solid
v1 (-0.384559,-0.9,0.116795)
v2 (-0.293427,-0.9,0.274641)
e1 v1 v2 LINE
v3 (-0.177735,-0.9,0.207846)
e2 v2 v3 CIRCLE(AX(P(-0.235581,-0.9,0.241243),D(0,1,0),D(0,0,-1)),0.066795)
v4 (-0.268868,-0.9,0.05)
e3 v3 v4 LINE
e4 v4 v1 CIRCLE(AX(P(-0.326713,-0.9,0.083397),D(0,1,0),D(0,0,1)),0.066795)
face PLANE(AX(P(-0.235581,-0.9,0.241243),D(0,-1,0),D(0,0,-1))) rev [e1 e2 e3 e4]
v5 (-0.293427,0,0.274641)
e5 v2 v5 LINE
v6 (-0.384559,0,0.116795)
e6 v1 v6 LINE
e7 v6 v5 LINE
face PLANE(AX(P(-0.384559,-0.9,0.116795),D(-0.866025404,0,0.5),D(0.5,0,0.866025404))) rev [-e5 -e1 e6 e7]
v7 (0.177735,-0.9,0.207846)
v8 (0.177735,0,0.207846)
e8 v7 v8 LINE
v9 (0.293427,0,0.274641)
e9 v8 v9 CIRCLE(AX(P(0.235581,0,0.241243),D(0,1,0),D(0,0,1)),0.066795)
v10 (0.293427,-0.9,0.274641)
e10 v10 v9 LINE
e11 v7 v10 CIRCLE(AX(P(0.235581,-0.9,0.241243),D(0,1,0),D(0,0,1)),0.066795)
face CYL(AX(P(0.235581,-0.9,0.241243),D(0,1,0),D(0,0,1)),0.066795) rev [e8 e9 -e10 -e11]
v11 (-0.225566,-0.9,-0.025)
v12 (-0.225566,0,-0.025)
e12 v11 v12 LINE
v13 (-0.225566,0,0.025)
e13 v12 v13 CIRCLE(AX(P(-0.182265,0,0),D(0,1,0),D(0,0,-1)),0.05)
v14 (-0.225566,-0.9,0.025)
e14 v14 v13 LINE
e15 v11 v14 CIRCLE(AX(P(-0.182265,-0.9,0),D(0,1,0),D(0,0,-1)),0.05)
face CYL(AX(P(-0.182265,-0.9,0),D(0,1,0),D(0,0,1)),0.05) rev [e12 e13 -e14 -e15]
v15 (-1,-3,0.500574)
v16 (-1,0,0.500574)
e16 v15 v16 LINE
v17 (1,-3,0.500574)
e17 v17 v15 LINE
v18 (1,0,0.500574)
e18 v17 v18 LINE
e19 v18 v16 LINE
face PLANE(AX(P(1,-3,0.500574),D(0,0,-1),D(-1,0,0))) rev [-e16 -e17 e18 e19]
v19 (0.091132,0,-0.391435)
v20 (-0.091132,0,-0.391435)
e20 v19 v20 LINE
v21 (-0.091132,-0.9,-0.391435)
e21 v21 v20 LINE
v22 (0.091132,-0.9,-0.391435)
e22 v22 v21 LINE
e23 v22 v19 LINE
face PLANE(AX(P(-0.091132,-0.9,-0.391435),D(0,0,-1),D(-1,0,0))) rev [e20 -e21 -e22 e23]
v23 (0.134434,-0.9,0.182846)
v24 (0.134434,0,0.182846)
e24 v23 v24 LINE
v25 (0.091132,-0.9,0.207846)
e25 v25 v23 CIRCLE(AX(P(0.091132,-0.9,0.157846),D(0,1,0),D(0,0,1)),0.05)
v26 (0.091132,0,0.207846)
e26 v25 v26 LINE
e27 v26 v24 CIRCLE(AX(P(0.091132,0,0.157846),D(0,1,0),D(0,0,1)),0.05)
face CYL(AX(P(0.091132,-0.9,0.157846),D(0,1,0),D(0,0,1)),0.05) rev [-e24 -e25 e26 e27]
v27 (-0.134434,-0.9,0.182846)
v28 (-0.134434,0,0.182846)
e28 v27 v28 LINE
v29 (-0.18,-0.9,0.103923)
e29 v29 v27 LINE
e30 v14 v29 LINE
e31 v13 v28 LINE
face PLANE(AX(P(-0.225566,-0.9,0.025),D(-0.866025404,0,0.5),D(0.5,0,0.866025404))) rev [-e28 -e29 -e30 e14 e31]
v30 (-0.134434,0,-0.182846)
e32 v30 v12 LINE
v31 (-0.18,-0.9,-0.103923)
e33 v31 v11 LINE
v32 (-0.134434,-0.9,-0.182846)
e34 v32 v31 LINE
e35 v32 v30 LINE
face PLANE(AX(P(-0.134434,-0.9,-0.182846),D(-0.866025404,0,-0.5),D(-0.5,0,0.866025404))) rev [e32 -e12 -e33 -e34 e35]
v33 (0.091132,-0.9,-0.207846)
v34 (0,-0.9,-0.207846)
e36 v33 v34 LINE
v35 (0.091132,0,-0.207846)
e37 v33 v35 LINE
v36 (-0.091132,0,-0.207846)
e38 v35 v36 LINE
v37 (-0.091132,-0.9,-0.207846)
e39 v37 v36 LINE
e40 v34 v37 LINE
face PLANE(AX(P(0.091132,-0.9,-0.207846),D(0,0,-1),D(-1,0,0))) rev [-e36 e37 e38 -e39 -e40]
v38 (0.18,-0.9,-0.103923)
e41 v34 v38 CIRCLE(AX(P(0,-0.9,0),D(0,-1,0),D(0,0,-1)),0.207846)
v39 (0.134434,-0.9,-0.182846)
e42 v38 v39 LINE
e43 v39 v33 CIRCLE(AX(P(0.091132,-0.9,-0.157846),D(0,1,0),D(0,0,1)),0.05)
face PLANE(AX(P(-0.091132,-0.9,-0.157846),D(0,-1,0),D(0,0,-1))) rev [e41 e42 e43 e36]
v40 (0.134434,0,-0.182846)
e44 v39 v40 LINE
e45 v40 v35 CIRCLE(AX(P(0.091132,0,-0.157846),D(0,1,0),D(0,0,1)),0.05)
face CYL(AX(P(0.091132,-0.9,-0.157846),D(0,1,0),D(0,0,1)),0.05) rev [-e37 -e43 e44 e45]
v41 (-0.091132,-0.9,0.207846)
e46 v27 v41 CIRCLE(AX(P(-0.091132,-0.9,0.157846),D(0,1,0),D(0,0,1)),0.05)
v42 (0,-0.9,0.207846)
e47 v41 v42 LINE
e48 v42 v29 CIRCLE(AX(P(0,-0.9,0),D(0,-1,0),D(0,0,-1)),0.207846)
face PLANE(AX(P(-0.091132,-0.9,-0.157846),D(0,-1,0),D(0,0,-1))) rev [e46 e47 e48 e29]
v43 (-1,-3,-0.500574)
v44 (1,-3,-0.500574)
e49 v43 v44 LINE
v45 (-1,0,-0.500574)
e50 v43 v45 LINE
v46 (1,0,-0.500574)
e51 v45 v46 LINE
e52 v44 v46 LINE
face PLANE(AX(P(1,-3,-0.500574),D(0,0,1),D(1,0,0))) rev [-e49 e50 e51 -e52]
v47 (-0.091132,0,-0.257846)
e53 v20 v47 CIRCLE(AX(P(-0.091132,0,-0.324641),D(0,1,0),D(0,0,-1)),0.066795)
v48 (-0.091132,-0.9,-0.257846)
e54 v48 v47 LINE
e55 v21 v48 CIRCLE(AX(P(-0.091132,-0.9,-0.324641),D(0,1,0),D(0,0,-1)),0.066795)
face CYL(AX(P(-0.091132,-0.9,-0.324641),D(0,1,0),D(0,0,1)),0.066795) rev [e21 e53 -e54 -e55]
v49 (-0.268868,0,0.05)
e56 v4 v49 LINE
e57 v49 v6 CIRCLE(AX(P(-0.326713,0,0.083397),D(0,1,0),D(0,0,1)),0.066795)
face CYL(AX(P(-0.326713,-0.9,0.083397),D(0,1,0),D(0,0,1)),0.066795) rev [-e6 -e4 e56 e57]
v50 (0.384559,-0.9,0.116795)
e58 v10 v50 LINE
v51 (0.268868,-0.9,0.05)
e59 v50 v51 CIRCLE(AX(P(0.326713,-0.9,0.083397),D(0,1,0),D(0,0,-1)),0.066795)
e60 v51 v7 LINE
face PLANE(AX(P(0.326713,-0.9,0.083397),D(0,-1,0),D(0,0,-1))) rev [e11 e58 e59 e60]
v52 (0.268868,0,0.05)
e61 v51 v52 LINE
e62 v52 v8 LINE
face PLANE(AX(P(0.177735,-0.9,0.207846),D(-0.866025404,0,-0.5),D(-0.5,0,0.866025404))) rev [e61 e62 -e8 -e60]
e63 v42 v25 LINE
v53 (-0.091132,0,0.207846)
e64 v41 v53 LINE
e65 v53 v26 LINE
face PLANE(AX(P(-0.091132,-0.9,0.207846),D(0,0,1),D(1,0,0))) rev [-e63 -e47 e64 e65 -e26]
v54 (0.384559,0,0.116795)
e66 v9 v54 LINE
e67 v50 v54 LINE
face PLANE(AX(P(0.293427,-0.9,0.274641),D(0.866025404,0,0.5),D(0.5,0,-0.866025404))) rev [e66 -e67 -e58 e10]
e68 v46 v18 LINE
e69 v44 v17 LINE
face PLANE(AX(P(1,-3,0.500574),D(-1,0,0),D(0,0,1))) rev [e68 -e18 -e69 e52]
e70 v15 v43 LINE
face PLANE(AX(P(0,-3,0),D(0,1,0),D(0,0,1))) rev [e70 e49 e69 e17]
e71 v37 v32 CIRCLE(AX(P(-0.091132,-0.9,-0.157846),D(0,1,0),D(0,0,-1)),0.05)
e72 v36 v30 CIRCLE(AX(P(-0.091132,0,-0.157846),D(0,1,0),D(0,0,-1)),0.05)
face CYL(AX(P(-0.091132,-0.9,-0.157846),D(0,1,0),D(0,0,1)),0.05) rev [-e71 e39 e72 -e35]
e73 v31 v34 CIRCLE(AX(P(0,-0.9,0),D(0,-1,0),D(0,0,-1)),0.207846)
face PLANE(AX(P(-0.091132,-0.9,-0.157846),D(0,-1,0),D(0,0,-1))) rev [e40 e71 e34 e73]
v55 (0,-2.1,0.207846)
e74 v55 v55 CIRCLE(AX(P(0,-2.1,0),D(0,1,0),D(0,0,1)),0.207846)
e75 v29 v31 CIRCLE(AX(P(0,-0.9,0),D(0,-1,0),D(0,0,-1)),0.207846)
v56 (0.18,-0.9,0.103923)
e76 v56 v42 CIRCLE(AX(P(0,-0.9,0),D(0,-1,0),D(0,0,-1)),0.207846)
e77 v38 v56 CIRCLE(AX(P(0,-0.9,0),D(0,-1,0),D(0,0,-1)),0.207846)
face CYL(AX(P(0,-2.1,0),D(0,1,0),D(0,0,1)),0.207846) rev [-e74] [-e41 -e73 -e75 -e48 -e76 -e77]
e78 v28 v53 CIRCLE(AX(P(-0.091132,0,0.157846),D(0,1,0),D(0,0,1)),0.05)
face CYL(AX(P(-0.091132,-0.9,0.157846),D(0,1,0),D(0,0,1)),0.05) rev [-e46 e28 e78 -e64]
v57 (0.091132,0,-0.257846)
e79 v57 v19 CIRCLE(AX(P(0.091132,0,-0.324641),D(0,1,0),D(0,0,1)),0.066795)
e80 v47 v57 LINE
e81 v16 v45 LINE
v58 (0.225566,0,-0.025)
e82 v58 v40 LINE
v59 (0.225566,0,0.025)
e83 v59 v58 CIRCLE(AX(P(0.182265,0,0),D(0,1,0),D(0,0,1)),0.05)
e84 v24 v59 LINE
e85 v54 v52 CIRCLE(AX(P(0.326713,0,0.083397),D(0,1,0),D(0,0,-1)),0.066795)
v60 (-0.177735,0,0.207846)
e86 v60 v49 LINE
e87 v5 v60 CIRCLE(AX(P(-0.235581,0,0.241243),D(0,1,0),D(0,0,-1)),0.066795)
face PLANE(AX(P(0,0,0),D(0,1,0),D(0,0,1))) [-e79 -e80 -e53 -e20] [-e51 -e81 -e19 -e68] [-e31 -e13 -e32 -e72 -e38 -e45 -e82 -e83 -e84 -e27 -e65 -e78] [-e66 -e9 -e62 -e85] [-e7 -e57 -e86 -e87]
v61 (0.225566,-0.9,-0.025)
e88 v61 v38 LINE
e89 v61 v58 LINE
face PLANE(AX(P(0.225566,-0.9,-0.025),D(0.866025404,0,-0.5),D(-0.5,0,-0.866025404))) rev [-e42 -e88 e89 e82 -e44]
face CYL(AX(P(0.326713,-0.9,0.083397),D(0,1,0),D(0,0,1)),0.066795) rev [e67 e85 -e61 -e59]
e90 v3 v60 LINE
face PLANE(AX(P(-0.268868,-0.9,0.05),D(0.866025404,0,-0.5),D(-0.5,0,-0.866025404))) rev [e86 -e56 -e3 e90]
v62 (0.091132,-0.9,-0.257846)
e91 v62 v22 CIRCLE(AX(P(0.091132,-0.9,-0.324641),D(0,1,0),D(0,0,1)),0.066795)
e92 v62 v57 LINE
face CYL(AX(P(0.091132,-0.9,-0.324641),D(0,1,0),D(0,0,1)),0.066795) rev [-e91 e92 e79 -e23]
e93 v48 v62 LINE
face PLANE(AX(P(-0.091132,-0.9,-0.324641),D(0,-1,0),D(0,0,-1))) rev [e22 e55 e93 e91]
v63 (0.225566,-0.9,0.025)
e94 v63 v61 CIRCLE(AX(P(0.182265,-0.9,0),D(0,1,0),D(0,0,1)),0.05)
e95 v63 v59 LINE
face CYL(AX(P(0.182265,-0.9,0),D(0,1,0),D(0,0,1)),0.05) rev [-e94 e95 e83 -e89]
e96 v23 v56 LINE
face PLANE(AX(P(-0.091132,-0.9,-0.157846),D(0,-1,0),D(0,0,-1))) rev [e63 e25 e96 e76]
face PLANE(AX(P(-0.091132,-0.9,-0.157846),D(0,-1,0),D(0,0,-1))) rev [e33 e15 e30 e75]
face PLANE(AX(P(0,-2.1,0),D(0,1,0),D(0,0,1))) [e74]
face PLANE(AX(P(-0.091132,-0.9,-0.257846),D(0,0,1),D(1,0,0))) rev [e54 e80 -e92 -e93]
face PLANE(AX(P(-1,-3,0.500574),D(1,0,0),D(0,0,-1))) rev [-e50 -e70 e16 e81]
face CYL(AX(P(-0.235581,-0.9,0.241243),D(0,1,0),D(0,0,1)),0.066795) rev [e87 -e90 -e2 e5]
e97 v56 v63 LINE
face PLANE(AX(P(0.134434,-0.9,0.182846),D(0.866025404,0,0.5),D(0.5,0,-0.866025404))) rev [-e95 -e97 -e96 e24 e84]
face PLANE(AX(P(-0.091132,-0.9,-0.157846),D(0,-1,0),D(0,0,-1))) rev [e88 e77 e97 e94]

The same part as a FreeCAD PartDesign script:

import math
import FreeCAD as App
import Part
import Sketcher
from FreeCAD import Vector
Q = App.Units.Quantity

doc = App.newDocument("Part")
body = doc.addObject("PartDesign::Body", "Body")

# Sketch on XZ plane
sketch1 = doc.addObject("Sketcher::SketchObject", "Sketch")
body.addObject(sketch1)
sketch1.AttachmentSupport = (doc.XZ_Plane, [""])
sketch1.MapMode = "FlatFace"
sketch1.addGeometry([
    Part.LineSegment(Vector(-1, 0.5, 0), Vector(-1, -0.5, 0)),
    Part.LineSegment(Vector(-1, -0.5, 0), Vector(1, -0.5, 0)),
    Part.LineSegment(Vector(1, -0.5, 0), Vector(1, 0.5, 0)),
    Part.LineSegment(Vector(1, 0.5, 0), Vector(-1, 0.5, 0)),
], False)
sketch1.addConstraint([
    Sketcher.Constraint("Coincident", 0, 2, 1, 1),
    Sketcher.Constraint("Coincident", 1, 2, 2, 1),
    Sketcher.Constraint("Coincident", 2, 2, 3, 1),
    Sketcher.Constraint("Coincident", 3, 2, 0, 1),
    Sketcher.Constraint("Vertical", 0),
    Sketcher.Constraint("Horizontal", 1),
    Sketcher.Constraint("Vertical", 2),
    Sketcher.Constraint("Horizontal", 3),
    Sketcher.Constraint("Symmetric", 0, 2, 2, 2, -1, 1),
    Sketcher.Constraint("DistanceX", 1, 1, 1, 2, Q("2 mm")),
    Sketcher.Constraint("DistanceY", 0, 2, 0, 1, Q("1.001149 mm")),
])
pad1 = doc.addObject("PartDesign::Pad", "Pad")
body.addObject(pad1)
pad1.Profile = sketch1
pad1.Length = 3

# Sketch on XZ plane
sketch2 = doc.addObject("Sketcher::SketchObject", "Sketch001")
body.addObject(sketch2)
sketch2.AttachmentSupport = (doc.XZ_Plane, [""])
sketch2.MapMode = "FlatFace"
sketch2.addGeometry([
    Part.LineSegment(Vector(-0.091, -0.258, 0), Vector(0.091, -0.258, 0)),  # 0
    Part.ArcOfCircle(Part.Circle(Vector(0.091, -0.325, 0), Vector(0, 0, 1), 0.067), math.radians(-90), math.radians(90)),  # 1
    Part.LineSegment(Vector(0.091, -0.391, 0), Vector(-0.091, -0.391, 0)),  # 2
    Part.ArcOfCircle(Part.Circle(Vector(-0.091, -0.325, 0), Vector(0, 0, 1), 0.067), math.radians(90), math.radians(270)),  # 3
    Part.LineSegment(Vector(-0.134, -0.183, 0), Vector(-0.226, -0.025, 0)),  # 4
    Part.ArcOfCircle(Part.Circle(Vector(-0.182, 0, 0), Vector(0, 0, 1), 0.05), math.radians(150), math.radians(210)),  # 5
    Part.LineSegment(Vector(-0.226, 0.025, 0), Vector(-0.134, 0.183, 0)),  # 6
    Part.ArcOfCircle(Part.Circle(Vector(-0.091, 0.158, 0), Vector(0, 0, 1), 0.05), math.radians(90), math.radians(150)),  # 7
    Part.LineSegment(Vector(-0.091, 0.208, 0), Vector(0.091, 0.208, 0)),  # 8
    Part.ArcOfCircle(Part.Circle(Vector(0.091, 0.158, 0), Vector(0, 0, 1), 0.05), math.radians(30), math.radians(90)),  # 9
    Part.LineSegment(Vector(0.134, 0.183, 0), Vector(0.226, 0.025, 0)),  # 10
    Part.ArcOfCircle(Part.Circle(Vector(0.182, 0, 0), Vector(0, 0, 1), 0.05), math.radians(-30), math.radians(30)),  # 11
    Part.LineSegment(Vector(0.226, -0.025, 0), Vector(0.134, -0.183, 0)),  # 12
    Part.ArcOfCircle(Part.Circle(Vector(0.091, -0.158, 0), Vector(0, 0, 1), 0.05), math.radians(-90), math.radians(-30)),  # 13
    Part.LineSegment(Vector(0.091, -0.208, 0), Vector(-0.091, -0.208, 0)),  # 14
    Part.ArcOfCircle(Part.Circle(Vector(-0.091, -0.158, 0), Vector(0, 0, 1), 0.05), math.radians(-150), math.radians(-90)),  # 15
    Part.LineSegment(Vector(0.293, 0.275, 0), Vector(0.385, 0.117, 0)),  # 16
    Part.ArcOfCircle(Part.Circle(Vector(0.327, 0.083, 0), Vector(0, 0, 1), 0.067), math.radians(-150), math.radians(30)),  # 17
    Part.LineSegment(Vector(0.269, 0.05, 0), Vector(0.178, 0.208, 0)),  # 18
    Part.ArcOfCircle(Part.Circle(Vector(0.236, 0.241, 0), Vector(0, 0, 1), 0.067), math.radians(30), math.radians(210)),  # 19
    Part.LineSegment(Vector(-0.385, 0.117, 0), Vector(-0.293, 0.275, 0)),  # 20
    Part.ArcOfCircle(Part.Circle(Vector(-0.236, 0.241, 0), Vector(0, 0, 1), 0.067), math.radians(-30), math.radians(150)),  # 21
    Part.LineSegment(Vector(-0.178, 0.208, 0), Vector(-0.269, 0.05, 0)),  # 22
    Part.ArcOfCircle(Part.Circle(Vector(-0.327, 0.083, 0), Vector(0, 0, 1), 0.067), math.radians(150), math.radians(330)),  # 23
], False)
sketch2.addConstraint([
    Sketcher.Constraint("Tangent", 0, 2, 1, 2),
    Sketcher.Constraint("Tangent", 1, 1, 2, 1),
    Sketcher.Constraint("Tangent", 2, 2, 3, 2),
    Sketcher.Constraint("Tangent", 3, 1, 0, 1),
    Sketcher.Constraint("Tangent", 4, 2, 5, 2),
    Sketcher.Constraint("Tangent", 5, 1, 6, 1),
    Sketcher.Constraint("Tangent", 6, 2, 7, 2),
    Sketcher.Constraint("Tangent", 7, 1, 8, 1),
    Sketcher.Constraint("Tangent", 8, 2, 9, 2),
    Sketcher.Constraint("Tangent", 9, 1, 10, 1),
    Sketcher.Constraint("Tangent", 10, 2, 11, 2),
    Sketcher.Constraint("Tangent", 11, 1, 12, 1),
    Sketcher.Constraint("Tangent", 12, 2, 13, 2),
    Sketcher.Constraint("Tangent", 13, 1, 14, 1),
    Sketcher.Constraint("Tangent", 14, 2, 15, 2),
    Sketcher.Constraint("Tangent", 15, 1, 4, 1),
    Sketcher.Constraint("Tangent", 16, 2, 17, 2),
    Sketcher.Constraint("Tangent", 17, 1, 18, 1),
    Sketcher.Constraint("Tangent", 18, 2, 19, 2),
    Sketcher.Constraint("Tangent", 19, 1, 16, 1),
    Sketcher.Constraint("Tangent", 20, 2, 21, 2),
    Sketcher.Constraint("Tangent", 21, 1, 22, 1),
    Sketcher.Constraint("Tangent", 22, 2, 23, 2),
    Sketcher.Constraint("Tangent", 23, 1, 20, 1),
    Sketcher.Constraint("Horizontal", 0),
    Sketcher.Constraint("Horizontal", 2),
    Sketcher.Constraint("Horizontal", 8),
    Sketcher.Constraint("Horizontal", 14),
    Sketcher.Constraint("Equal", 5, 7),
    Sketcher.Constraint("Equal", 7, 9),
    Sketcher.Constraint("Equal", 9, 11),
    Sketcher.Constraint("Equal", 11, 13),
    Sketcher.Constraint("Equal", 13, 15),
    Sketcher.Constraint("Equal", 3, 17),
    Sketcher.Constraint("Equal", 17, 19),
    Sketcher.Constraint("Equal", 19, 21),
    Sketcher.Constraint("Equal", 21, 23),
    Sketcher.Constraint("Symmetric", 5, 3, 11, 3, -1, 1),
    Sketcher.Constraint("Symmetric", 7, 3, 13, 3, -1, 1),
    Sketcher.Constraint("Symmetric", 19, 3, 21, 3, -2),
    Sketcher.Constraint("Symmetric", 17, 3, 23, 3, -2),
    Sketcher.Constraint("Symmetric", 6, 2, 9, 1, -2),
    Sketcher.Constraint("Parallel", 4, 10),
    Sketcher.Constraint("Parallel", 10, 16),
    Sketcher.Constraint("Horizontal", 8, 2, 18, 2),
    Sketcher.Constraint("Vertical", 3, 3, 7, 3),
    Sketcher.Constraint("Vertical", 1, 3, 9, 3),
    Sketcher.Constraint("Equal", 12, 16),
    Sketcher.Constraint("Angle", 4, Q("120 deg")),
    Sketcher.Constraint("Radius", 5, Q("0.05 mm")),
    Sketcher.Constraint("DistanceY", 0, 2, 13, 3, Q("0.1 mm")),
    Sketcher.Constraint("Radius", 1, Q("0.066795 mm")),
    Sketcher.Constraint("DistanceX", 10, 2, 17, 1, Q("0.043301 mm")),
    Sketcher.Constraint("DistanceX", 0, 1, 0, 2, Q("0.182265 mm")),
    Sketcher.Constraint("DistanceY", 1, 3, -1, 1, Q("0.324641 mm")),
])
pocket1 = doc.addObject("PartDesign::Pocket", "Pocket")
body.addObject(pocket1)
pocket1.Profile = sketch2
pocket1.Length = 0.9
pocket1.Reversed = True

# Sketch on XZ plane
sketch3 = doc.addObject("Sketcher::SketchObject", "Sketch002")
body.addObject(sketch3)
sketch3.AttachmentSupport = (doc.XZ_Plane, [""])
sketch3.MapMode = "FlatFace"
sketch3.AttachmentOffset = App.Placement(Vector(0, 0, -0.6), App.Rotation())
sketch3.addGeometry(Part.Circle(Vector(0, 0, 0), Vector(0, 0, 1), 0.21), False)
sketch3.addConstraint([
    Sketcher.Constraint("Coincident", 0, 3, -1, 1),
    Sketcher.Constraint("Diameter", 0, Q("0.415692 mm")),
])
pocket2 = doc.addObject("PartDesign::Pocket", "Pocket001")
body.addObject(pocket2)
pocket2.Profile = sketch3
pocket2.Length = 2.7
pocket2.Reversed = True

doc.recompute()
